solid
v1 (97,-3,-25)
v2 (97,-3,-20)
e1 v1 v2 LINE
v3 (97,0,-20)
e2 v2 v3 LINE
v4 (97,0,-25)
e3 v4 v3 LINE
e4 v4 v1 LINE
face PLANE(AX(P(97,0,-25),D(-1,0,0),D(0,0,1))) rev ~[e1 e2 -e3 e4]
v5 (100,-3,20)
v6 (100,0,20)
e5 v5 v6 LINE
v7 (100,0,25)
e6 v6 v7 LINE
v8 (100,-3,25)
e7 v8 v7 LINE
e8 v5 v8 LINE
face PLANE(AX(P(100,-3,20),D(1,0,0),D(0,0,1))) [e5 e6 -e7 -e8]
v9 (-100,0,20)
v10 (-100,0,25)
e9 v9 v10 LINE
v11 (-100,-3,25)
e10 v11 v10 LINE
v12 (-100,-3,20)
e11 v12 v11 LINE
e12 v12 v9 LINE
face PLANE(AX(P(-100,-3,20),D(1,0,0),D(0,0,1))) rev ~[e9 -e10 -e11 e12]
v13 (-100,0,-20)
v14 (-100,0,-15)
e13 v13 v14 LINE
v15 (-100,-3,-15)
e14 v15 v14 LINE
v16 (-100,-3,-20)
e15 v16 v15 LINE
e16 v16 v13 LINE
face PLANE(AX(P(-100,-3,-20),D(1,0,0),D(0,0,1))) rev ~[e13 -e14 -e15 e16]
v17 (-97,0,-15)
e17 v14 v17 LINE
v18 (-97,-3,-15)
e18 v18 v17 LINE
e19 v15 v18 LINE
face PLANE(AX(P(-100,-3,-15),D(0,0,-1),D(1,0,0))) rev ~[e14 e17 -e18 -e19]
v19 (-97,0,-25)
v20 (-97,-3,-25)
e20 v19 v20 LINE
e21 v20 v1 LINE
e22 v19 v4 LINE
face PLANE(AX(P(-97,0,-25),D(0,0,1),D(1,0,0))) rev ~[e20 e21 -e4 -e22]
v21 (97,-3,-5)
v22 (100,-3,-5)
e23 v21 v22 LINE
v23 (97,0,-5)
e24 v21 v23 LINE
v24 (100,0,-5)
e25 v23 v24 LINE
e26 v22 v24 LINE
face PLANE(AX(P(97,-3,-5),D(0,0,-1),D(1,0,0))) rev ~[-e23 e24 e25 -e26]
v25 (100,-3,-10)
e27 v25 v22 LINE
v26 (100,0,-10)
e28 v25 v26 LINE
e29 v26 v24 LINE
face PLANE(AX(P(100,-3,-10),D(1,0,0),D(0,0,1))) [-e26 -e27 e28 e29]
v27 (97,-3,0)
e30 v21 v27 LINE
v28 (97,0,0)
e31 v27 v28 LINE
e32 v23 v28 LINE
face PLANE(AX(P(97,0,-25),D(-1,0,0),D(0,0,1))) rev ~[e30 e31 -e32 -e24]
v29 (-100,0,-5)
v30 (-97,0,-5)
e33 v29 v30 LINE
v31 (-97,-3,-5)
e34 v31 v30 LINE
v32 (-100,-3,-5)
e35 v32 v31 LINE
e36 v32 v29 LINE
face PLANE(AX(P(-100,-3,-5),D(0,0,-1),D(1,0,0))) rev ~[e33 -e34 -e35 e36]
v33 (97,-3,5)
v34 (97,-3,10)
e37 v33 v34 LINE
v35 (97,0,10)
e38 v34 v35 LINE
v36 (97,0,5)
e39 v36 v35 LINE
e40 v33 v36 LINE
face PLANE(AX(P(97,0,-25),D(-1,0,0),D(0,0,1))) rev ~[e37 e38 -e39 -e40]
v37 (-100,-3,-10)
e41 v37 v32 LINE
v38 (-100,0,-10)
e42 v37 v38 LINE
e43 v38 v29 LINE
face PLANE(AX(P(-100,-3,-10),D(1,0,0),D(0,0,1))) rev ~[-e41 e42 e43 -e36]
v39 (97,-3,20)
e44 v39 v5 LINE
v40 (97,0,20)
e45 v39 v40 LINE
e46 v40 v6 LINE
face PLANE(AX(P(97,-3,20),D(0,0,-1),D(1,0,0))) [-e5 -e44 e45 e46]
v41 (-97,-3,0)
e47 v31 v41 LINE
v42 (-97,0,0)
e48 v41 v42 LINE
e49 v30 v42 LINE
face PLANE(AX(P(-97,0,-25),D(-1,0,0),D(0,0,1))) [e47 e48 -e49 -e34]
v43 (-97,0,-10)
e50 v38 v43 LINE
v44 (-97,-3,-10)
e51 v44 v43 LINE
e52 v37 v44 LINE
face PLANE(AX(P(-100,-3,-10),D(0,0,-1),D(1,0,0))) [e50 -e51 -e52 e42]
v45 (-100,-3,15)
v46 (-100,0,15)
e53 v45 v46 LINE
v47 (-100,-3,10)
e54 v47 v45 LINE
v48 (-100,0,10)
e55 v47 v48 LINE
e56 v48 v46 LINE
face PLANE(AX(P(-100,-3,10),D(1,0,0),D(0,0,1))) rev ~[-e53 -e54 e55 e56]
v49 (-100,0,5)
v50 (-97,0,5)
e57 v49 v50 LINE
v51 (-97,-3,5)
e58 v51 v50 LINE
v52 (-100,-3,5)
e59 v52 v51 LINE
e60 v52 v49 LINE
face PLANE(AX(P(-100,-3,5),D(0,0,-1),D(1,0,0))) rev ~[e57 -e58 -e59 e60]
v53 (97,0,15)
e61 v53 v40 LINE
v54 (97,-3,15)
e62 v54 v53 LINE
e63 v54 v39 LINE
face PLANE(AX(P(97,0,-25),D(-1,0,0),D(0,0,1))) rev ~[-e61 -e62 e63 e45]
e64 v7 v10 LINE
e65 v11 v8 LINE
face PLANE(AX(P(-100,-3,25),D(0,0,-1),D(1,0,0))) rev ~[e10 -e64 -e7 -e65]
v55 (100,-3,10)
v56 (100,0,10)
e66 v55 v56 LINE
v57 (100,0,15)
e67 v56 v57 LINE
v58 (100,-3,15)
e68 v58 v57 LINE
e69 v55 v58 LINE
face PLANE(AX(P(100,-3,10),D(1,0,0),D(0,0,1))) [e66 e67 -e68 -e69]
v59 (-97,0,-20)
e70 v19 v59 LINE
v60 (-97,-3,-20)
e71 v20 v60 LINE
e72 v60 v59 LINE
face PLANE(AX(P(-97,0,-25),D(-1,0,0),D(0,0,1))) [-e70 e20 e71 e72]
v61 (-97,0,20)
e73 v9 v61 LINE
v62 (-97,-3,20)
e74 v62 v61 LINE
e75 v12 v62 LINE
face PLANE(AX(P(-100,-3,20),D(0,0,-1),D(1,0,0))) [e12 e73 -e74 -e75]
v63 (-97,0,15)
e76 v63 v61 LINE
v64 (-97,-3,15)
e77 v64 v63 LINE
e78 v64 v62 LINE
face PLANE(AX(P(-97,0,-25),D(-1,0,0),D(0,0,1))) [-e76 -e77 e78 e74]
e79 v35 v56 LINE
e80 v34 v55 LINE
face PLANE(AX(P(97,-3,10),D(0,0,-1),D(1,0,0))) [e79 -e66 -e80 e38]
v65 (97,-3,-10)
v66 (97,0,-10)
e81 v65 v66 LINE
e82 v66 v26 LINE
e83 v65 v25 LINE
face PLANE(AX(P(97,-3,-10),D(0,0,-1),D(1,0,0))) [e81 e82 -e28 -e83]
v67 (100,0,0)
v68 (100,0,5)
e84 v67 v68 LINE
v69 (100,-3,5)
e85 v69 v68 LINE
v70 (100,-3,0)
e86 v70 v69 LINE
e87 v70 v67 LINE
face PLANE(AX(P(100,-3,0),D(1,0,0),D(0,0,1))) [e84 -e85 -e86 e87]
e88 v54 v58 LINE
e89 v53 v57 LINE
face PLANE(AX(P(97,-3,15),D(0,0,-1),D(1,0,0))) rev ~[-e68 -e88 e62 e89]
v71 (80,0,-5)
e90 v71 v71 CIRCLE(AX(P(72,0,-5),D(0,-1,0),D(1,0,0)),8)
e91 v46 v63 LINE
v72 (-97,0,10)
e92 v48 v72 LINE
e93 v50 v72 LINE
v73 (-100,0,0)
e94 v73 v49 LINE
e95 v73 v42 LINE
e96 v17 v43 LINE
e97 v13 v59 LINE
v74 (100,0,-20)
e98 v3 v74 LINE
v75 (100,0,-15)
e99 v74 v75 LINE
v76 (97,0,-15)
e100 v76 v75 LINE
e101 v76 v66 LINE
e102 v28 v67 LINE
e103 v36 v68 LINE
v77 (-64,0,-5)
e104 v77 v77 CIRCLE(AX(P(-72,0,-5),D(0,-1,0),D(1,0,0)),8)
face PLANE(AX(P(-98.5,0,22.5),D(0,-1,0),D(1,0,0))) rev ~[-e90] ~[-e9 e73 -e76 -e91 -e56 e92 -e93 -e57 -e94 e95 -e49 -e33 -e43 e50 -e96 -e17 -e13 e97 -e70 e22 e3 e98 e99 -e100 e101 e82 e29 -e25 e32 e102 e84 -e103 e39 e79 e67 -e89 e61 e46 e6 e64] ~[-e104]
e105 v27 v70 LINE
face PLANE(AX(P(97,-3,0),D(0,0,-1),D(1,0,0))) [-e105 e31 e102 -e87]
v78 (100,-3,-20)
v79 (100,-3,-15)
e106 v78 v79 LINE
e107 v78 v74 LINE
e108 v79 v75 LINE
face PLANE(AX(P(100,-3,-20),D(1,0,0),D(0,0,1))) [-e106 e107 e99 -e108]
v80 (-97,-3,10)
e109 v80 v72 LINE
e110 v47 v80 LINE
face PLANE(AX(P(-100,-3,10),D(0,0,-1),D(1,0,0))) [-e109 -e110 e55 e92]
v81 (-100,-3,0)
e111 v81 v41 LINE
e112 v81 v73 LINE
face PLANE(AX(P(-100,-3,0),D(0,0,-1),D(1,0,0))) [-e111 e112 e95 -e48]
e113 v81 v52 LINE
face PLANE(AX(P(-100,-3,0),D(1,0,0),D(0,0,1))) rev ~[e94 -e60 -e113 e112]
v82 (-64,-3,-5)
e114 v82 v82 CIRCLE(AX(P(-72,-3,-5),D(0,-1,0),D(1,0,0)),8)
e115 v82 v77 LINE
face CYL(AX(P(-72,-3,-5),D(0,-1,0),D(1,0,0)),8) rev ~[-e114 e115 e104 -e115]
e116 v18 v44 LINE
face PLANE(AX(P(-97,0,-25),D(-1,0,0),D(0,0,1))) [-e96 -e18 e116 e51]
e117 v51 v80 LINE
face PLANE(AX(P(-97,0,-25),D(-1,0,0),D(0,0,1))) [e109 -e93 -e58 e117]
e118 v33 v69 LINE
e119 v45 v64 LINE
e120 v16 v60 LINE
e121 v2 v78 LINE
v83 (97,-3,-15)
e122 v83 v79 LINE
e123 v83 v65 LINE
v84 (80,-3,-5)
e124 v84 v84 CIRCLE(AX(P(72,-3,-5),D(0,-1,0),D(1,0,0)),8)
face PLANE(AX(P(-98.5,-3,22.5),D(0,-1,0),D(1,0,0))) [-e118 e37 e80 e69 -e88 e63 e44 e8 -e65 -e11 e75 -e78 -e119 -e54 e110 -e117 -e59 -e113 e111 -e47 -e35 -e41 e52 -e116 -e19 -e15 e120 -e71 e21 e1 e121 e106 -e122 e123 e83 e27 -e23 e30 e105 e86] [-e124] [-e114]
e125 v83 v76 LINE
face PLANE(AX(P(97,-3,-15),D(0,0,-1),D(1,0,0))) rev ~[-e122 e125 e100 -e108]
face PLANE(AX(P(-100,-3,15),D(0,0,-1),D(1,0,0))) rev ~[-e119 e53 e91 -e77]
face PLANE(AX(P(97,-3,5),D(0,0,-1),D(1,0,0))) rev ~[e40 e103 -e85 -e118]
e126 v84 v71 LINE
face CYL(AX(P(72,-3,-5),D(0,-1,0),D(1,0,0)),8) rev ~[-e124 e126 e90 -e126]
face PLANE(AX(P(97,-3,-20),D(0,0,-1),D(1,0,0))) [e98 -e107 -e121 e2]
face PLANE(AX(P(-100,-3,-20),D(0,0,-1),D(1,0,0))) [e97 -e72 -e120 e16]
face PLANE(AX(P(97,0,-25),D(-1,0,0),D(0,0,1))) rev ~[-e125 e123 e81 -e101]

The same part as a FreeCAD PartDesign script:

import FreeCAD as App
import Part
import Sketcher


def add_polygon(sketch, points):
    """Adds a closed chain of lines whose ends are joined by coincident constraints."""
    first, n = sketch.GeometryCount, len(points)
    for a, b in zip(points, points[1:] + points[:1]):
        sketch.addGeometry(Part.LineSegment(App.Vector(*a, 0), App.Vector(*b, 0)), False)
    for i in range(n):
        sketch.addConstraint(Sketcher.Constraint("Coincident", first + i, 2, first + (i + 1) % n, 1))

doc = App.newDocument("Part")
params = doc.addObject("Spreadsheet::Sheet", "Params")
for row, (alias, value) in enumerate([
    ("sketch1_width", "194 mm"),
    ("sketch1_height", "50 mm"),
    ("pad1_length", "3 mm"),
    ("sketch2_width", "3 mm"),
    ("sketch2_height", "5 mm"),
    ("pad2_length", "3 mm"),
    ("sketch3_diameter", "16 mm"),
    ("pocket1_length", "25 mm"),
], start=1):
    params.set(f"A{row}", alias)
    params.set(f"B{row}", "=" + value)
    params.setAlias(f"B{row}", alias)

body = doc.addObject("PartDesign::Body", "Body")

sketch1 = doc.addObject("Sketcher::SketchObject", "Sketch")
body.addObject(sketch1)
sketch1.AttachmentSupport = (doc.XZ_Plane, [""])
sketch1.MapMode = "FlatFace"
add_polygon(sketch1, [(-97, 25), (-97, -25), (97, -25), (97, 25)])
sketch1.addConstraint([
    Sketcher.Constraint("Vertical", 0),
    Sketcher.Constraint("Horizontal", 1),
    Sketcher.Constraint("Vertical", 2),
    Sketcher.Constraint("Horizontal", 3),
    Sketcher.Constraint("Symmetric", 0, 2, 2, 2, -1, 1),
    Sketcher.Constraint("DistanceX", 1, 1, 1, 2, 194.0),
    Sketcher.Constraint("DistanceY", 0, 2, 0, 1, 50.0),
])
sketch1.setExpression("Constraints[9]", "Params.sketch1_width")
sketch1.setExpression("Constraints[10]", "Params.sketch1_height")
pad1 = doc.addObject("PartDesign::Pad", "Pad")
body.addObject(pad1)
pad1.Profile = sketch1
pad1.setExpression("Length", "Params.pad1_length")

sketch2 = doc.addObject("Sketcher::SketchObject", "Sketch001")
body.addObject(sketch2)
sketch2.AttachmentSupport = (doc.XZ_Plane, [""])
sketch2.MapMode = "FlatFace"
sketch2.AttachmentOffset = App.Placement(App.Vector(0, 0, 3), App.Rotation())
add_polygon(sketch2, [(-100, 25), (-100, 20), (-97, 20), (-97, 25)])
add_polygon(sketch2, [(-100, 15), (-100, 10), (-97, 10), (-97, 15)])
add_polygon(sketch2, [(-100, 5), (-100, 0), (-97, 0), (-97, 5)])
add_polygon(sketch2, [(-100, -5), (-100, -10), (-97, -10), (-97, -5)])
add_polygon(sketch2, [(-100, -15), (-100, -20), (-97, -20), (-97, -15)])
add_polygon(sketch2, [(97, 15), (97, 10), (100, 10), (100, 15)])
add_polygon(sketch2, [(97, 25), (97, 20), (100, 20), (100, 25)])
add_polygon(sketch2, [(97, 5), (97, 0), (100, 0), (100, 5)])
add_polygon(sketch2, [(97, -5), (97, -10), (100, -10), (100, -5)])
add_polygon(sketch2, [(97, -15), (97, -20), (100, -20), (100, -15)])
sketch2.addConstraint([
    Sketcher.Constraint("Vertical", 0),
    Sketcher.Constraint("Horizontal", 1),
    Sketcher.Constraint("Vertical", 2),
    Sketcher.Constraint("Horizontal", 3),
    Sketcher.Constraint("Vertical", 4),
    Sketcher.Constraint("Horizontal", 5),
    Sketcher.Constraint("Vertical", 6),
    Sketcher.Constraint("Horizontal", 7),
    Sketcher.Constraint("Vertical", 8),
    Sketcher.Constraint("Horizontal", 9),
    Sketcher.Constraint("Vertical", 10),
    Sketcher.Constraint("Horizontal", 11),
    Sketcher.Constraint("Vertical", 12),
    Sketcher.Constraint("Horizontal", 13),
    Sketcher.Constraint("Vertical", 14),
    Sketcher.Constraint("Horizontal", 15),
    Sketcher.Constraint("Vertical", 16),
    Sketcher.Constraint("Horizontal", 17),
    Sketcher.Constraint("Vertical", 18),
    Sketcher.Constraint("Horizontal", 19),
    Sketcher.Constraint("Vertical", 20),
    Sketcher.Constraint("Horizontal", 21),
    Sketcher.Constraint("Vertical", 22),
    Sketcher.Constraint("Horizontal", 23),
    Sketcher.Constraint("Vertical", 24),
    Sketcher.Constraint("Horizontal", 25),
    Sketcher.Constraint("Vertical", 26),
    Sketcher.Constraint("Horizontal", 27),
    Sketcher.Constraint("Vertical", 28),
    Sketcher.Constraint("Horizontal", 29),
    Sketcher.Constraint("Vertical", 30),
    Sketcher.Constraint("Horizontal", 31),
    Sketcher.Constraint("Vertical", 32),
    Sketcher.Constraint("Horizontal", 33),
    Sketcher.Constraint("Vertical", 34),
    Sketcher.Constraint("Horizontal", 35),
    Sketcher.Constraint("Vertical", 36),
    Sketcher.Constraint("Horizontal", 37),
    Sketcher.Constraint("Vertical", 38),
    Sketcher.Constraint("Horizontal", 39),
    Sketcher.Constraint("Symmetric", 13, 2, 20, 2, -1, 1),
    Sketcher.Constraint("Symmetric", 19, 2, 22, 2, -1, 1),
    Sketcher.Constraint("Symmetric", 17, 2, 24, 2, -1, 1),
    Sketcher.Constraint("Symmetric", 9, 2, 28, 2, -1, 1),
    Sketcher.Constraint("Symmetric", 15, 2, 30, 2, -1, 1),
    Sketcher.Constraint("Symmetric", 5, 2, 32, 2, -1, 1),
    Sketcher.Constraint("Symmetric", 11, 2, 34, 2, -1, 1),
    Sketcher.Constraint("Symmetric", 1, 2, 36, 2, -1, 1),
    Sketcher.Constraint("Symmetric", 7, 2, 38, 2, -1, 1),
    Sketcher.Constraint("Symmetric", 5, 2, 20, 2, -2),
    Sketcher.Constraint("Symmetric", 7, 2, 22, 2, -2),
    Sketcher.Constraint("Symmetric", 1, 2, 24, 2, -2),
    Sketcher.Constraint("Symmetric", 3, 2, 26, 2, -2),
    Sketcher.Constraint("Symmetric", 8, 2, 29, 2, -2),
    Sketcher.Constraint("Symmetric", 10, 2, 14, 2, -1),
    Sketcher.Constraint("Vertical", 3, 2, 4, 2),
    Sketcher.Constraint("Vertical", 2, 2, 5, 2),
    Sketcher.Constraint("Vertical", 7, 2, 8, 2),
    Sketcher.Constraint("Equal", 2, 4),
    Sketcher.Constraint("Equal", 6, 8),
    Sketcher.Constraint("Equal", 10, 12),
    Sketcher.Constraint("Equal", 14, 16),
    Sketcher.Constraint("DistanceX", 1, 1, 1, 2, 3.0),
    Sketcher.Constraint("DistanceY", 0, 2, 0, 1, 5.0),
    Sketcher.Constraint("DistanceX", 0, 2, -1, 1, 100.0),
])
sketch2.setExpression("Constraints[102]", "Params.sketch2_width")
sketch2.setExpression("Constraints[103]", "Params.sketch2_height")
pad2 = doc.addObject("PartDesign::Pad", "Pad001")
body.addObject(pad2)
pad2.Profile = sketch2
pad2.setExpression("Length", "Params.pad2_length")
pad2.Reversed = True

sketch3 = doc.addObject("Sketcher::SketchObject", "Sketch002")
body.addObject(sketch3)
sketch3.AttachmentSupport = (doc.XZ_Plane, [""])
sketch3.MapMode = "FlatFace"
sketch3.AttachmentOffset = App.Placement(App.Vector(0, 0, 3), App.Rotation())
sketch3.addGeometry([
    Part.Circle(App.Vector(-72, -5, 0), App.Vector(0, 0, 1), 8),
    Part.Circle(App.Vector(72, -5, 0), App.Vector(0, 0, 1), 8),
], False)
sketch3.addConstraint([
    Sketcher.Constraint("Equal", 0, 1),
    Sketcher.Constraint("Symmetric", 0, 3, 1, 3, -2),
    Sketcher.Constraint("Diameter", 0, 16.0),
    Sketcher.Constraint("DistanceX", 0, 3, -1, 1, 72.0),
    Sketcher.Constraint("DistanceY", 0, 3, -1, 1, 5.0),
])
sketch3.setExpression("Constraints[2]", "Params.sketch3_diameter")
pocket1 = doc.addObject("PartDesign::Pocket", "Pocket")
body.addObject(pocket1)
pocket1.Profile = sketch3
pocket1.setExpression("Length", "Params.pocket1_length")

doc.recompute()
